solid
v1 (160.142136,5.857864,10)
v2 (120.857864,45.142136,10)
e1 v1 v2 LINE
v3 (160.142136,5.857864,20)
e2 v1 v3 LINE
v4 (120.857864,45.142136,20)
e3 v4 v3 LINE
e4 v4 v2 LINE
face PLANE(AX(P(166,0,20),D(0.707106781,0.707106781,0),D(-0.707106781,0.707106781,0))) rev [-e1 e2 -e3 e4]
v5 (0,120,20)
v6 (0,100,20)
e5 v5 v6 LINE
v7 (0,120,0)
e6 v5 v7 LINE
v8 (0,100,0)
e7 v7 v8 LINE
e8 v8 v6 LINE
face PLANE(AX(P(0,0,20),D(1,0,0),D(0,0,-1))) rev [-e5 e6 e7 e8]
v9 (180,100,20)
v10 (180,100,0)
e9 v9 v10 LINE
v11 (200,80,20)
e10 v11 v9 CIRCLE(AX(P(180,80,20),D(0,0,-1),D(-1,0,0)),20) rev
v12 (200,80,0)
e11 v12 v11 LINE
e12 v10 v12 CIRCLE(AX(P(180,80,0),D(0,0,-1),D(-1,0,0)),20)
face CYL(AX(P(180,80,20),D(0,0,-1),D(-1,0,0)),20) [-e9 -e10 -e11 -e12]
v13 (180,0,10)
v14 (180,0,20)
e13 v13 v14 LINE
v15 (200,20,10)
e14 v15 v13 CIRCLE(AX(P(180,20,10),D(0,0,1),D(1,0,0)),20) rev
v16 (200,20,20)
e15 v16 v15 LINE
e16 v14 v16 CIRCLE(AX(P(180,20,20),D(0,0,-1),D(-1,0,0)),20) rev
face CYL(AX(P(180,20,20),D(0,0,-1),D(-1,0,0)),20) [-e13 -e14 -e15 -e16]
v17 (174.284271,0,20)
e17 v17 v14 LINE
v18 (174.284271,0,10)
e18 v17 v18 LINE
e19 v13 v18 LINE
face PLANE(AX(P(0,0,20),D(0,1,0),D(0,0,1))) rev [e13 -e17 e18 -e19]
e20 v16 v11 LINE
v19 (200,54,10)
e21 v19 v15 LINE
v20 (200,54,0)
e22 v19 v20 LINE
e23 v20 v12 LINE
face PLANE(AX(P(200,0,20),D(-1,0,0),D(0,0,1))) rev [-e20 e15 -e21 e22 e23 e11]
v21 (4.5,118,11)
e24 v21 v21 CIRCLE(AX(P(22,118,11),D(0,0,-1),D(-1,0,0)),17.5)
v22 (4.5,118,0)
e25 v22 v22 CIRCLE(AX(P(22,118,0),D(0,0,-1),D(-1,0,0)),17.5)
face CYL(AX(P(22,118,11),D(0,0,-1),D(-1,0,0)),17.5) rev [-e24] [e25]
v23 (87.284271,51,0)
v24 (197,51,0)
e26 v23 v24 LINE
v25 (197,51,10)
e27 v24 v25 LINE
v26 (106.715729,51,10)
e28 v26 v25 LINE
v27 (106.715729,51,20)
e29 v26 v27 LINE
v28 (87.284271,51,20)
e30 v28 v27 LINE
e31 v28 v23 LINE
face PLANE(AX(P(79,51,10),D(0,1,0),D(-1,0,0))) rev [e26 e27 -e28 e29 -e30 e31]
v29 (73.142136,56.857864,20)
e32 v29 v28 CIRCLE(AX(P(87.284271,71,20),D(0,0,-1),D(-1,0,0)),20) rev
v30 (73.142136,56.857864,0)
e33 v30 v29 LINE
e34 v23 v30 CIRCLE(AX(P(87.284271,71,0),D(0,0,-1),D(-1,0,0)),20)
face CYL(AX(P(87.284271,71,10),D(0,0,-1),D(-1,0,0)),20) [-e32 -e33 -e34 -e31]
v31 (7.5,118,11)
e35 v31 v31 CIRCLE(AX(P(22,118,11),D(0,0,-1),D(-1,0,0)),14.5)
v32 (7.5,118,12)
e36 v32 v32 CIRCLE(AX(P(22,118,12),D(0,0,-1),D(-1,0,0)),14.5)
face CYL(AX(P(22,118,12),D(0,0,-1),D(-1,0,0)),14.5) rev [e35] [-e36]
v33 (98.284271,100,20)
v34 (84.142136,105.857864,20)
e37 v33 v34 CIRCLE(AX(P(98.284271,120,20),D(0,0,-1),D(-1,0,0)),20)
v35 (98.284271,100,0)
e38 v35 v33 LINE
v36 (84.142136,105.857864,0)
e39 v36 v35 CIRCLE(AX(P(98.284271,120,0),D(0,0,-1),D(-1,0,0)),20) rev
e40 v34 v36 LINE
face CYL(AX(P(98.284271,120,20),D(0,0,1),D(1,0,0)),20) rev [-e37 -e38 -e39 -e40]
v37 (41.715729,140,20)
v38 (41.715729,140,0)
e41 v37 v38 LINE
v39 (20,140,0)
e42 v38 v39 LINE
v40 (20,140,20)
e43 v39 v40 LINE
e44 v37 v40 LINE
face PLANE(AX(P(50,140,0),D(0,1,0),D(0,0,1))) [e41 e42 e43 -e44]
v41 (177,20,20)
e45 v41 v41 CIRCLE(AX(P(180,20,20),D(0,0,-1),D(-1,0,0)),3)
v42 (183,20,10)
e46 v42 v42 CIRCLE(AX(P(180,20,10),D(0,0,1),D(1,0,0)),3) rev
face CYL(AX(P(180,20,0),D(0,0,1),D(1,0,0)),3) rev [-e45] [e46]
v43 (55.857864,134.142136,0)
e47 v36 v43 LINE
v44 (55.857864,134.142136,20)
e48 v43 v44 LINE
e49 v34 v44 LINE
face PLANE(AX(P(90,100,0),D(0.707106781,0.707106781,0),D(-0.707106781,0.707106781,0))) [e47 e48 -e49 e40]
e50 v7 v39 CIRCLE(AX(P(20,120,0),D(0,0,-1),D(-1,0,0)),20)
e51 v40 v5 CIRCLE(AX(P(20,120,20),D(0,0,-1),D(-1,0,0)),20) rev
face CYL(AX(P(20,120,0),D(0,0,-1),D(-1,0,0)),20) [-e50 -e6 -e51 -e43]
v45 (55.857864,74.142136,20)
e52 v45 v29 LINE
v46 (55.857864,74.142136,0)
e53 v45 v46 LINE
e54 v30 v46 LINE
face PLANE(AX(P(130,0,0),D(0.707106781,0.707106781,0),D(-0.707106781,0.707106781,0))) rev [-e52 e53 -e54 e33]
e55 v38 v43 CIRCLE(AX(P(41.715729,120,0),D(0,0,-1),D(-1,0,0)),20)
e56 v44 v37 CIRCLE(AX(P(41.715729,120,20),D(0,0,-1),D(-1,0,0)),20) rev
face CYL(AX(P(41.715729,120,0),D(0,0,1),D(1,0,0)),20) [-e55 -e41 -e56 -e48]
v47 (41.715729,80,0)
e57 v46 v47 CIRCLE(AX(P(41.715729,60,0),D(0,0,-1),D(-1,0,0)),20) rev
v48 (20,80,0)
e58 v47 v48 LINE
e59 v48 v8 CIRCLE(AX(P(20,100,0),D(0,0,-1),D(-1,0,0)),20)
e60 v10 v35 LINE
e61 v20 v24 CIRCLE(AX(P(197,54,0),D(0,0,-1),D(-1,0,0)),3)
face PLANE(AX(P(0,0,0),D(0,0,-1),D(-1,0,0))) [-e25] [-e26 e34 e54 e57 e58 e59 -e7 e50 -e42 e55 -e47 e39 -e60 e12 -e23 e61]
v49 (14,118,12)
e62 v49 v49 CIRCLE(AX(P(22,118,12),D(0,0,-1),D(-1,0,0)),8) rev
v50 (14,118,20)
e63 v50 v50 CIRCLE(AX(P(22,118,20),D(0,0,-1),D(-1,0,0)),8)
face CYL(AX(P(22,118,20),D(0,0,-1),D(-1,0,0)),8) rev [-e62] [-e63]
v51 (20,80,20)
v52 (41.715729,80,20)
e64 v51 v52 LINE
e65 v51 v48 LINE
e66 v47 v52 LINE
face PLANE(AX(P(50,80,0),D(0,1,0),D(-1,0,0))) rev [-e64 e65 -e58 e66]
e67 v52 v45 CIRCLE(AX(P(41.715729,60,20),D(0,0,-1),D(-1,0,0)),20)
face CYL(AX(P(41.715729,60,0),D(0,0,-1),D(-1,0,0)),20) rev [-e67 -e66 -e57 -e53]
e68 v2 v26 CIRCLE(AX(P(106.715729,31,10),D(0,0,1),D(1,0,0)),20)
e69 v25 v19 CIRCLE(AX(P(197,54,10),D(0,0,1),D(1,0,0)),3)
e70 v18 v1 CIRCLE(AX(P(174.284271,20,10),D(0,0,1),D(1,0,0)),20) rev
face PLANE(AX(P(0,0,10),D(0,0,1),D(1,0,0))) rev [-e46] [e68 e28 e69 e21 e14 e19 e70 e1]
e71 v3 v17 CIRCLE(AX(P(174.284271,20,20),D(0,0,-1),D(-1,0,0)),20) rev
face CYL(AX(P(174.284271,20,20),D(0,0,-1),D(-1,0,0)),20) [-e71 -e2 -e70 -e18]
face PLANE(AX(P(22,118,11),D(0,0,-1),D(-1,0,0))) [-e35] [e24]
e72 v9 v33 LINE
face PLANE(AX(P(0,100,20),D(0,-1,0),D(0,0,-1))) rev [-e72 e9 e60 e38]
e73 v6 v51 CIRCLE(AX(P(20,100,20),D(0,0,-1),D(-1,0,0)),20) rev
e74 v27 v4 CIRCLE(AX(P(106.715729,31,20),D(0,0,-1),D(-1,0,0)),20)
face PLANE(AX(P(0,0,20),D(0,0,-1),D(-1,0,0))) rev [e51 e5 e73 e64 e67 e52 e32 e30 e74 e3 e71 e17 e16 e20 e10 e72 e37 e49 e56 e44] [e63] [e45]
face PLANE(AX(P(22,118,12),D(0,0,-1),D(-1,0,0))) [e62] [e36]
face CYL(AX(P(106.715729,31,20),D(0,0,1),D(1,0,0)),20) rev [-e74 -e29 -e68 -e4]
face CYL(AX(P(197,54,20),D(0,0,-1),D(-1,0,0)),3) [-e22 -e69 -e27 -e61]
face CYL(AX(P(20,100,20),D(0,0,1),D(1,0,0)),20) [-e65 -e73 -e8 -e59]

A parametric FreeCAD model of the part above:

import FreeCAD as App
import Part
import Sketcher
Q = App.Units.Quantity


def edges_at(feature, points):
    """Names of the edges that pass closest to the given points."""
    edges = feature.Shape.Edges
    near = lambda p: min(range(len(edges)), key=lambda i: edges[i].distToShape(Part.Vertex(*p))[0])
    return sorted({f"Edge{near(p) + 1}" for p in points})


def add_polygon(sketch, points):
    """Adds a closed chain of lines whose ends are joined by coincident constraints."""
    first, n = sketch.GeometryCount, len(points)
    for a, b in zip(points, points[1:] + points[:1]):
        sketch.addGeometry(Part.LineSegment(App.Vector(*a, 0), App.Vector(*b, 0)), False)
    for i in range(n):
        sketch.addConstraint(Sketcher.Constraint("Coincident", first + i, 2, first + (i + 1) % n, 1))

doc = App.newDocument("Part")
params = doc.addObject("Spreadsheet::Sheet", "Params")
for row, (alias, value) in enumerate([
    ("sketch1_width", "200 mm"),
    ("sketch1_height", "100 mm"),
    ("pad1_length", "20 mm"),
    ("sketch2_diameter", "6 mm"),
    ("sketch3_width", "50 mm"),
    ("sketch3_width2", "130 mm"),
    ("sketch3_height", "80 mm"),
    ("sketch4_width", "121 mm"),
    ("sketch4_width2", "70 mm"),
    ("sketch4_height", "51 mm"),
    ("pocket3_length", "10 mm"),
    ("sketch5_width", "36 mm"),
    ("sketch6_width", "90 mm"),
    ("sketch6_width2", "50 mm"),
    ("sketch6_height", "40 mm"),
    ("pad2_length", "20 mm"),
    ("sketch7_diameter", "35 mm"),
    ("pocket5_length", "11 mm"),
    ("sketch8_diameter", "16 mm"),
    ("sketch9_diameter", "29 mm"),
    ("pocket7_length", "1 mm"),
    ("fillet_radius", "20 mm"),
    ("fillet2_radius", "3 mm"),
], start=1):
    params.set(f"A{row}", alias)
    params.set(f"B{row}", "=" + value)
    params.setAlias(f"B{row}", alias)

body = doc.addObject("PartDesign::Body", "Body")

# Sketch on XY plane
sketch1 = body.newObject("Sketcher::SketchObject", "Sketch")
sketch1.AttachmentSupport = (doc.getObject("XY_Plane"), [""])
sketch1.MapMode = "FlatFace"
add_polygon(sketch1, [(0, 100), (0, 0), (200, 0), (200, 100)])  # lines 0-3
sketch1.addConstraint(Sketcher.Constraint("Vertical", 0))
sketch1.addConstraint(Sketcher.Constraint("Horizontal", 1))
sketch1.addConstraint(Sketcher.Constraint("Vertical", 2))
sketch1.addConstraint(Sketcher.Constraint("Horizontal", 3))
sketch1.addConstraint(Sketcher.Constraint("Coincident", 0, 2, -1, 1))
sketch1.addConstraint(Sketcher.Constraint("DistanceX", 1, 1, 1, 2, 200.0))
sketch1.addConstraint(Sketcher.Constraint("DistanceY", 0, 2, 0, 1, 100.0))
sketch1.setExpression("Constraints[9]", "Params.sketch1_width")
sketch1.setExpression("Constraints[10]", "Params.sketch1_height")
pad1 = body.newObject("PartDesign::Pad", "Pad")
pad1.Profile = sketch1
pad1.setExpression("Length", "Params.pad1_length")

# Sketch on XY plane
sketch2 = body.newObject("Sketcher::SketchObject", "Sketch001")
sketch2.AttachmentSupport = (doc.getObject("XY_Plane"), [""])
sketch2.MapMode = "FlatFace"
sketch2.AttachmentOffset = App.Placement(App.Vector(0, 0, 20), App.Rotation())
sketch2.addGeometry(Part.Circle(App.Vector(180, 20, 0), App.Vector(0, 0, 1), 3), False)
sketch2.addConstraint(Sketcher.Constraint("Diameter", 0, 6.0))
sketch2.addConstraint(Sketcher.Constraint("DistanceX", -1, 1, 0, 3, 180.0))
sketch2.addConstraint(Sketcher.Constraint("DistanceY", -1, 1, 0, 3, 20.0))
sketch2.setExpression("Constraints[0]", "Params.sketch2_diameter")
pocket1 = body.newObject("PartDesign::Pocket", "Pocket")
pocket1.Profile = sketch2
pocket1.Type = "ThroughAll"
pocket1.Midplane = True

# Sketch on XY plane
sketch3 = body.newObject("Sketcher::SketchObject", "Sketch002")
sketch3.AttachmentSupport = (doc.getObject("XY_Plane"), [""])
sketch3.MapMode = "FlatFace"
sketch3.AttachmentOffset = App.Placement(App.Vector(0, 0, 20), App.Rotation())
add_polygon(sketch3, [(130, 0), (50, 80), (0, 80), (0, 0)])  # lines 0-3
sketch3.addConstraint(Sketcher.Constraint("Horizontal", 1))
sketch3.addConstraint(Sketcher.Constraint("Vertical", 2))
sketch3.addConstraint(Sketcher.Constraint("Horizontal", 3))
sketch3.addConstraint(Sketcher.Constraint("Coincident", 2, 2, -1, 1))
sketch3.addConstraint(Sketcher.Constraint("DistanceX", 1, 2, 1, 1, 50.0))
sketch3.addConstraint(Sketcher.Constraint("DistanceX", 3, 1, 3, 2, 130.0))
sketch3.addConstraint(Sketcher.Constraint("DistanceY", 2, 2, 2, 1, 80.0))
sketch3.setExpression("Constraints[8]", "Params.sketch3_width")
sketch3.setExpression("Constraints[9]", "Params.sketch3_width2")
sketch3.setExpression("Constraints[10]", "Params.sketch3_height")
pocket2 = body.newObject("PartDesign::Pocket", "Pocket001")
pocket2.Profile = sketch3
pocket2.Type = "ThroughAll"
pocket2.Midplane = True

# Sketch on XY plane
sketch4 = body.newObject("Sketcher::SketchObject", "Sketch003")
sketch4.AttachmentSupport = (doc.getObject("XY_Plane"), [""])
sketch4.MapMode = "FlatFace"
add_polygon(sketch4, [(130, 0), (79, 51), (200, 51), (200, 0)])  # lines 0-3
sketch4.addConstraint(Sketcher.Constraint("Horizontal", 1))
sketch4.addConstraint(Sketcher.Constraint("Vertical", 2))
sketch4.addConstraint(Sketcher.Constraint("Horizontal", 3))
sketch4.addConstraint(Sketcher.Constraint("PointOnObject", 2, 2, -1))
sketch4.addConstraint(Sketcher.Constraint("DistanceX", 1, 1, 1, 2, 121.0))
sketch4.addConstraint(Sketcher.Constraint("DistanceX", 3, 2, 3, 1, 70.0))
sketch4.addConstraint(Sketcher.Constraint("DistanceY", 2, 2, 2, 1, 51.0))
sketch4.addConstraint(Sketcher.Constraint("DistanceX", -1, 1, 0, 2, 79.0))
sketch4.setExpression("Constraints[8]", "Params.sketch4_width")
sketch4.setExpression("Constraints[9]", "Params.sketch4_width2")
sketch4.setExpression("Constraints[10]", "Params.sketch4_height")
pocket3 = body.newObject("PartDesign::Pocket", "Pocket002")
pocket3.Profile = sketch4
pocket3.setExpression("Length", "Params.pocket3_length")
pocket3.Reversed = True

# Sketch on XY plane
sketch5 = body.newObject("Sketcher::SketchObject", "Sketch004")
sketch5.AttachmentSupport = (doc.getObject("XY_Plane"), [""])
sketch5.MapMode = "FlatFace"
sketch5.AttachmentOffset = App.Placement(App.Vector(0, 0, 10), App.Rotation())
add_polygon(sketch5, [(166, 0), (130, 0), (79, 51), (115, 51)])  # lines 0-3
sketch5.addConstraint(Sketcher.Constraint("Horizontal", 0))
sketch5.addConstraint(Sketcher.Constraint("Horizontal", 2))
sketch5.addConstraint(Sketcher.Constraint("PointOnObject", 0, 2, -1))
sketch5.addConstraint(Sketcher.Constraint("Parallel", 1, 3))
sketch5.addConstraint(Sketcher.Constraint("DistanceX", 0, 2, 0, 1, 36.0))
sketch5.addConstraint(Sketcher.Constraint("Angle", 1, Q("135 deg")))
sketch5.addConstraint(Sketcher.Constraint("DistanceX", -1, 1, 0, 2, 130.0))
sketch5.addConstraint(Sketcher.Constraint("DistanceX", -1, 1, 1, 2, 79.0))
sketch5.setExpression("Constraints[8]", "Params.sketch5_width")
pocket4 = body.newObject("PartDesign::Pocket", "Pocket003")
pocket4.Profile = sketch5
pocket4.Type = "ThroughAll"
pocket4.Midplane = True

# Sketch on XY plane
sketch6 = body.newObject("Sketcher::SketchObject", "Sketch005")
sketch6.AttachmentSupport = (doc.getObject("XY_Plane"), [""])
sketch6.MapMode = "FlatFace"
sketch6.AttachmentOffset = App.Placement(App.Vector(0, 0, 20), App.Rotation())
add_polygon(sketch6, [(0, 100), (90, 100), (50, 140), (0, 140)])  # lines 0-3
sketch6.addConstraint(Sketcher.Constraint("Horizontal", 0))
sketch6.addConstraint(Sketcher.Constraint("Horizontal", 2))
sketch6.addConstraint(Sketcher.Constraint("Vertical", 3))
sketch6.addConstraint(Sketcher.Constraint("PointOnObject", 2, 2, -2))
sketch6.addConstraint(Sketcher.Constraint("DistanceX", 0, 1, 0, 2, 90.0))
sketch6.addConstraint(Sketcher.Constraint("DistanceX", 2, 2, 2, 1, 50.0))
sketch6.addConstraint(Sketcher.Constraint("DistanceY", 3, 2, 3, 1, 40.0))
sketch6.addConstraint(Sketcher.Constraint("DistanceY", -1, 1, 0, 2, 100.0))
sketch6.setExpression("Constraints[8]", "Params.sketch6_width")
sketch6.setExpression("Constraints[9]", "Params.sketch6_width2")
sketch6.setExpression("Constraints[10]", "Params.sketch6_height")
pad2 = body.newObject("PartDesign::Pad", "Pad001")
pad2.Profile = sketch6
pad2.setExpression("Length", "Params.pad2_length")
pad2.Reversed = True

# Sketch on XY plane
sketch7 = body.newObject("Sketcher::SketchObject", "Sketch006")
sketch7.AttachmentSupport = (doc.getObject("XY_Plane"), [""])
sketch7.MapMode = "FlatFace"
sketch7.addGeometry(Part.Circle(App.Vector(22, 118, 0), App.Vector(0, 0, 1), 17.5), False)
sketch7.addConstraint(Sketcher.Constraint("Diameter", 0, 35.0))
sketch7.addConstraint(Sketcher.Constraint("DistanceX", -1, 1, 0, 3, 22.0))
sketch7.addConstraint(Sketcher.Constraint("DistanceY", -1, 1, 0, 3, 118.0))
sketch7.setExpression("Constraints[0]", "Params.sketch7_diameter")
pocket5 = body.newObject("PartDesign::Pocket", "Pocket004")
pocket5.Profile = sketch7
pocket5.setExpression("Length", "Params.pocket5_length")
pocket5.Reversed = True

# Sketch on XY plane
sketch8 = body.newObject("Sketcher::SketchObject", "Sketch007")
sketch8.AttachmentSupport = (doc.getObject("XY_Plane"), [""])
sketch8.MapMode = "FlatFace"
sketch8.AttachmentOffset = App.Placement(App.Vector(0, 0, 11), App.Rotation())
sketch8.addGeometry(Part.Circle(App.Vector(22, 118, 0), App.Vector(0, 0, 1), 8), False)
sketch8.addConstraint(Sketcher.Constraint("Diameter", 0, 16.0))
sketch8.addConstraint(Sketcher.Constraint("DistanceX", -1, 1, 0, 3, 22.0))
sketch8.addConstraint(Sketcher.Constraint("DistanceY", -1, 1, 0, 3, 118.0))
sketch8.setExpression("Constraints[0]", "Params.sketch8_diameter")
pocket6 = body.newObject("PartDesign::Pocket", "Pocket005")
pocket6.Profile = sketch8
pocket6.Type = "ThroughAll"
pocket6.Midplane = True

# Sketch on XY plane
sketch9 = body.newObject("Sketcher::SketchObject", "Sketch008")
sketch9.AttachmentSupport = (doc.getObject("XY_Plane"), [""])
sketch9.MapMode = "FlatFace"
sketch9.AttachmentOffset = App.Placement(App.Vector(0, 0, 11), App.Rotation())
sketch9.addGeometry(Part.Circle(App.Vector(22, 118, 0), App.Vector(0, 0, 1), 14.5), False)
sketch9.addConstraint(Sketcher.Constraint("Diameter", 0, 29.0))
sketch9.addConstraint(Sketcher.Constraint("DistanceX", -1, 1, 0, 3, 22.0))
sketch9.addConstraint(Sketcher.Constraint("DistanceY", -1, 1, 0, 3, 118.0))
sketch9.setExpression("Constraints[0]", "Params.sketch9_diameter")
pocket7 = body.newObject("PartDesign::Pocket", "Pocket006")
pocket7.Profile = sketch9
pocket7.setExpression("Length", "Params.pocket7_length")
pocket7.Reversed = True
doc.recompute()

fillet = body.newObject("PartDesign::Fillet", "Fillet")
fillet.Base = (pocket7, edges_at(pocket7, [
    (0, 80, 10),
    (50, 80, 10),
    (79, 51, 10),
    (115, 51, 15),
    (166, 0, 15),
    (200, 100, 10),
    (0, 140, 10),
    (200, 0, 15),
    (50, 140, 10),
    (90, 100, 10),
]))
fillet.setExpression("Radius", "Params.fillet_radius")
doc.recompute()

fillet2 = body.newObject("PartDesign::Fillet", "Fillet001")
fillet2.Base = (fillet, edges_at(fillet, [(200, 51, 5)]))
fillet2.setExpression("Radius", "Params.fillet2_radius")

doc.recompute()
